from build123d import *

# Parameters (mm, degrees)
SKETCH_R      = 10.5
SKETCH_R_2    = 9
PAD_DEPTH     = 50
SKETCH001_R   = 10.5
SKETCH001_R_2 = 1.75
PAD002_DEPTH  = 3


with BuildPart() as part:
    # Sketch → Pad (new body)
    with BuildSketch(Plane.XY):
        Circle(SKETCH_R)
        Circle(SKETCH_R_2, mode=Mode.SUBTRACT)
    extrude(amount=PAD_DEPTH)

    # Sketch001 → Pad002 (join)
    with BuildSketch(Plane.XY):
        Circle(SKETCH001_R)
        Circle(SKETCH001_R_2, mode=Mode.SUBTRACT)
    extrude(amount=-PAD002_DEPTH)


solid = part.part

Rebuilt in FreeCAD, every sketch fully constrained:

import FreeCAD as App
import Part
import Sketcher
Q = App.Units.Quantity

doc = App.newDocument("Part")
params = doc.addObject("Spreadsheet::Sheet", "Params")
for row, (alias, value) in enumerate([
    ("sketch1_diameter", "21 mm"),
    ("sketch1_diameter2", "18 mm"),
    ("pad1_length", "50 mm"),
    ("sketch2_diameter", "21 mm"),
    ("sketch2_diameter2", "3.5 mm"),
    ("pad2_length", "3 mm"),
], start=1):
    params.set(f"A{row}", alias)
    params.set(f"B{row}", "=" + value)
    params.setAlias(f"B{row}", alias)

body = doc.addObject("PartDesign::Body", "Body")

sketch1 = body.newObject("Sketcher::SketchObject", "Sketch")
sketch1.AttachmentSupport = (doc.getObject("XY_Plane"), [""])
sketch1.MapMode = "FlatFace"
sketch1.addGeometry([
    Part.Circle(App.Vector(0, 0, 0), App.Vector(0, 0, 1), 10),
    Part.Circle(App.Vector(0, 0, 0), App.Vector(0, 0, 1), 9),
], False)
sketch1.addConstraint([
    Sketcher.Constraint("Coincident", 0, 3, -1, 1),
    Sketcher.Constraint("Coincident", 1, 3, -1, 1),
    Sketcher.Constraint("Diameter", 0, Q("21 mm")),
    Sketcher.Constraint("Diameter", 1, Q("18 mm")),
])
sketch1.setExpression("Constraints[2]", "Params.sketch1_diameter")
sketch1.setExpression("Constraints[3]", "Params.sketch1_diameter2")
pad1 = body.newObject("PartDesign::Pad", "Pad")
pad1.Profile = sketch1
pad1.setExpression("Length", "Params.pad1_length")

sketch2 = body.newObject("Sketcher::SketchObject", "Sketch001")
sketch2.AttachmentSupport = (doc.getObject("XY_Plane"), [""])
sketch2.MapMode = "FlatFace"
sketch2.addGeometry([
    Part.Circle(App.Vector(0, 0, 0), App.Vector(0, 0, 1), 10.5),
    Part.Circle(App.Vector(0, 0, 0), App.Vector(0, 0, 1), 1.8),
], False)
sketch2.addConstraint([
    Sketcher.Constraint("Coincident", 0, 3, -1, 1),
    Sketcher.Constraint("Coincident", 1, 3, -1, 1),
    Sketcher.Constraint("Diameter", 0, Q("21 mm")),
    Sketcher.Constraint("Diameter", 1, Q("3.5 mm")),
])
sketch2.setExpression("Constraints[2]", "Params.sketch2_diameter")
sketch2.setExpression("Constraints[3]", "Params.sketch2_diameter2")
pad2 = body.newObject("PartDesign::Pad", "Pad001")
pad2.Profile = sketch2
pad2.setExpression("Length", "Params.pad2_length")
pad2.Reversed = True

doc.recompute()
